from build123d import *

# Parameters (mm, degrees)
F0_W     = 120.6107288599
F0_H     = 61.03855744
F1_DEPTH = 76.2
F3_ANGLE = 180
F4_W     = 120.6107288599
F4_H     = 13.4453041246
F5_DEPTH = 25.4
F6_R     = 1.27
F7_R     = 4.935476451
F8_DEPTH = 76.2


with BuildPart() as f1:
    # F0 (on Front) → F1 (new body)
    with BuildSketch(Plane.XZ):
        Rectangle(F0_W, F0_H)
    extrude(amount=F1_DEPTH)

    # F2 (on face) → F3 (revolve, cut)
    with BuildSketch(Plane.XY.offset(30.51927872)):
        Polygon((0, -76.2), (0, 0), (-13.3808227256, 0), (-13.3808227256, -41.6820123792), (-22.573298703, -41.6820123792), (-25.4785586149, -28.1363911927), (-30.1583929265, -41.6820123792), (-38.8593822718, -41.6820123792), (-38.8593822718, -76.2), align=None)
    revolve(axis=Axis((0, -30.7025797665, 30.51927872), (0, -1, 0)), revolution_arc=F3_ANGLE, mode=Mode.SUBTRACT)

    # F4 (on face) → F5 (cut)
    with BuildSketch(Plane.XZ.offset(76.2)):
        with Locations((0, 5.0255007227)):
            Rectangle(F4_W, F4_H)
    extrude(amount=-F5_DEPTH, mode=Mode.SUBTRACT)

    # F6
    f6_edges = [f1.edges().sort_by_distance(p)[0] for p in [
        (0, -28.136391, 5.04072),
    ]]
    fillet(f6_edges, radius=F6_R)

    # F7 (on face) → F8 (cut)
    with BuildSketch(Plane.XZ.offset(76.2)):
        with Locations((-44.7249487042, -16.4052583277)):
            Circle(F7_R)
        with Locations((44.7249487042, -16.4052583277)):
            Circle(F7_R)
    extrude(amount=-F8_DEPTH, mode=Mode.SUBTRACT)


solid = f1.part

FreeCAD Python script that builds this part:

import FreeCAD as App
import Part
import Sketcher

V = App.Vector
Q = App.Units.Quantity


def edges_at(feature, points):
    """Names of the edges that pass closest to the given points."""
    edges = feature.Shape.Edges
    near = lambda p: min(range(len(edges)), key=lambda i: edges[i].distToShape(Part.Vertex(*p))[0])
    return sorted({f"Edge{near(p) + 1}" for p in points})


def add_polygon(sketch, points):
    """Adds a closed chain of lines whose ends are joined by coincident constraints."""
    first, n = sketch.GeometryCount, len(points)
    for a, b in zip(points, points[1:] + points[:1]):
        sketch.addGeometry(Part.LineSegment(App.Vector(*a, 0), App.Vector(*b, 0)), False)
    for i in range(n):
        sketch.addConstraint(Sketcher.Constraint("Coincident", first + i, 2, first + (i + 1) % n, 1))

doc = App.newDocument("Part")
body = doc.addObject("PartDesign::Body", "Body")

sketch1 = body.newObject("Sketcher::SketchObject", "Sketch")
sketch1.AttachmentSupport = (doc.getObject("XZ_Plane"), [""])
sketch1.MapMode = "FlatFace"
add_polygon(sketch1, [(-60.305364, 30.519279), (-60.305364, -30.519279), (60.305364, -30.519279), (60.305364, 30.519279)])
sketch1.addConstraint([
    Sketcher.Constraint("Vertical", 0),
    Sketcher.Constraint("Horizontal", 1),
    Sketcher.Constraint("Vertical", 2),
    Sketcher.Constraint("Horizontal", 3),
    Sketcher.Constraint("Symmetric", 0, 2, 2, 2, -1, 1),
    Sketcher.Constraint("DistanceX", 1, 1, 1, 2, Q("120.610729 mm")),
    Sketcher.Constraint("DistanceY", 0, 2, 0, 1, Q("61.038557 mm")),
])
pad1 = body.newObject("PartDesign::Pad", "Pad")
pad1.Profile = sketch1
pad1.Length = Q("3 in")

sketch2 = body.newObject("Sketcher::SketchObject", "Sketch001")
sketch2.AttachmentSupport = (doc.getObject("XY_Plane"), [""])
sketch2.MapMode = "FlatFace"
sketch2.AttachmentOffset = App.Placement(V(0, 0, 30.519279), App.Rotation())
add_polygon(sketch2, [(0, -76.2), (0, 0), (-13.380823, 0), (-13.380823, -41.682012), (-22.573299, -41.682012), (-25.478559, -28.136391), (-30.158393, -41.682012), (-38.859382, -41.682012), (-38.859382, -76.2)])
sketch2.addConstraint([
    Sketcher.Constraint("Vertical", 0),
    Sketcher.Constraint("Horizontal", 1),
    Sketcher.Constraint("Vertical", 2),
    Sketcher.Constraint("Horizontal", 3),
    Sketcher.Constraint("Horizontal", 6),
    Sketcher.Constraint("Vertical", 7),
    Sketcher.Constraint("Horizontal", 8),
    Sketcher.Constraint("Coincident", 0, 2, -1, 1),
    Sketcher.Constraint("Horizontal", 3, 2, 5, 2),
    Sketcher.Constraint("DistanceY", 0, 1, 0, 2, Q("3 in")),
    Sketcher.Constraint("DistanceX", 6, 2, 6, 1, Q("8.700989 mm")),
    Sketcher.Constraint("DistanceX", 3, 2, -1, 1, Q("22.573299 mm")),
    Sketcher.Constraint("Distance", 5, Q("14.331249 mm")),
    Sketcher.Constraint("DistanceX", 1, 2, 1, 1, Q("13.380823 mm")),
    Sketcher.Constraint("DistanceX", 8, 1, 8, 2, Q("38.859382 mm")),
    Sketcher.Constraint("DistanceY", 2, 2, 2, 1, Q("41.682012 mm")),
    Sketcher.Constraint("DistanceX", 4, 2, -1, 1, Q("25.478559 mm")),
])
groove = body.newObject("PartDesign::Groove", "Groove")
groove.Profile = sketch2
groove.ReferenceAxis = (sketch2, ["V_Axis"])
groove.Angle = 180
groove.Reversed = True

sketch3 = body.newObject("Sketcher::SketchObject", "Sketch002")
sketch3.AttachmentSupport = (doc.getObject("XZ_Plane"), [""])
sketch3.MapMode = "FlatFace"
sketch3.AttachmentOffset = App.Placement(V(0, 0, 3 * 25.4), App.Rotation())
add_polygon(sketch3, [(-60.305364, 11.748153), (-60.305364, -1.697151), (60.305364, -1.697151), (60.305364, 11.748153)])
sketch3.addConstraint([
    Sketcher.Constraint("Vertical", 0),
    Sketcher.Constraint("Horizontal", 1),
    Sketcher.Constraint("Vertical", 2),
    Sketcher.Constraint("Horizontal", 3),
    Sketcher.Constraint("DistanceX", 1, 1, 1, 2, Q("120.610729 mm")),
    Sketcher.Constraint("DistanceY", 0, 2, 0, 1, Q("13.445304 mm")),
    Sketcher.Constraint("DistanceY", 0, 2, -1, 1, Q("1.697151 mm")),
    Sketcher.Constraint("DistanceX", 0, 2, -1, 1, Q("60.305364 mm")),
])
pocket1 = body.newObject("PartDesign::Pocket", "Pocket")
pocket1.Profile = sketch3
pocket1.Length = Q("1 in")
doc.recompute()

fillet = body.newObject("PartDesign::Fillet", "Fillet")
fillet.Base = (pocket1, edges_at(pocket1, [(0, -28.136, 5.041)]))
fillet.Radius = Q("0.05 in")

sketch4 = body.newObject("Sketcher::SketchObject", "Sketch003")
sketch4.AttachmentSupport = (doc.getObject("XZ_Plane"), [""])
sketch4.MapMode = "FlatFace"
sketch4.AttachmentOffset = App.Placement(V(0, 0, 3 * 25.4), App.Rotation())
sketch4.addGeometry([
    Part.Circle(V(-44.724949, -16.405258, 0), V(0, 0, 1), 4.935476),
    Part.Circle(V(44.724949, -16.405258, 0), V(0, 0, 1), 4.935476),
], False)
sketch4.addConstraint([
    Sketcher.Constraint("Equal", 0, 1),
    Sketcher.Constraint("Symmetric", 0, 3, 1, 3, -2),
    Sketcher.Constraint("Diameter", 0, Q("9.870953 mm")),
    Sketcher.Constraint("DistanceX", 0, 3, -1, 1, Q("44.724949 mm")),
    Sketcher.Constraint("DistanceY", 0, 3, -1, 1, Q("16.405258 mm")),
])
pocket2 = body.newObject("PartDesign::Pocket", "Pocket001")
pocket2.Profile = sketch4
pocket2.Length = Q("3 in")

doc.recompute()
